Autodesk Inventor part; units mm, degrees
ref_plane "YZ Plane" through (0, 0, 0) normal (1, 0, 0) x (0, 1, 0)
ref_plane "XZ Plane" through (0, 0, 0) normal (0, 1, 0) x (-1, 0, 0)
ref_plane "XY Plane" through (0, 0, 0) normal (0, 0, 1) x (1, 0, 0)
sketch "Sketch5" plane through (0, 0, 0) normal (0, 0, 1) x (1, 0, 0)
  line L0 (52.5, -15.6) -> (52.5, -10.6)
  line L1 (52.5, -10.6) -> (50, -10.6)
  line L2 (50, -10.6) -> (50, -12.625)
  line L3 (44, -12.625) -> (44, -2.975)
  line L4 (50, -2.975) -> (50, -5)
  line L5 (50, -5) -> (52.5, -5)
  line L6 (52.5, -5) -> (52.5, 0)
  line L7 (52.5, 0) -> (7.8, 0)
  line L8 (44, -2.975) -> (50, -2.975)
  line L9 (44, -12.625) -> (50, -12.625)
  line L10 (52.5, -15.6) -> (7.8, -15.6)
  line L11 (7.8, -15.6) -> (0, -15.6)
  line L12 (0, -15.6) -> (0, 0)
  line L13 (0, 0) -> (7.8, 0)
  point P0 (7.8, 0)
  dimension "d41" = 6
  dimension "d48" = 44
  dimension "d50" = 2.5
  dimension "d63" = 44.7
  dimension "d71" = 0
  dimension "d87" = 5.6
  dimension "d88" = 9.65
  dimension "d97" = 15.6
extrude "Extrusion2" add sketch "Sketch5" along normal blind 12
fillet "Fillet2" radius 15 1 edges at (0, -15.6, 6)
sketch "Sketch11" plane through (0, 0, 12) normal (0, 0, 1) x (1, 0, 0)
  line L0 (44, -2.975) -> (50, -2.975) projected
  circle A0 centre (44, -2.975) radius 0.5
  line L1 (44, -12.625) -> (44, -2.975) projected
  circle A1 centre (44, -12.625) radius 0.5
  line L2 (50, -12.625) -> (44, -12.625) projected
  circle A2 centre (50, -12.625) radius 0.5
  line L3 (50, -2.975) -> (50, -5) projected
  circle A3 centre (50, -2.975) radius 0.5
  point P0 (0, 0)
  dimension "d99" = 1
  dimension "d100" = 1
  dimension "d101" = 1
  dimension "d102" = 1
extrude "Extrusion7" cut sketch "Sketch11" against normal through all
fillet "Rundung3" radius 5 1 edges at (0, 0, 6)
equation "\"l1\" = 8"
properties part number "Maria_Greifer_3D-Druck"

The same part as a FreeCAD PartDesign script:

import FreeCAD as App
import Part
import Sketcher


def edges_at(feature, points):
    """Names of the edges that pass closest to the given points."""
    edges = feature.Shape.Edges
    near = lambda p: min(range(len(edges)), key=lambda i: edges[i].distToShape(Part.Vertex(*p))[0])
    return sorted({f"Edge{near(p) + 1}" for p in points})

doc = App.newDocument("Part")
params = doc.addObject("Spreadsheet::Sheet", "Params")
for row, (alias, value) in enumerate([
    ("sketch1_width", "6 mm"),
    ("sketch1_width2", "2.5 mm"),
    ("sketch1_height", "15.6 mm"),
    ("sketch1_height2", "9.65 mm"),
    ("pad1_length", "12 mm"),
    ("fillet_radius", "15 mm"),
    ("sketch2_diameter", "1 mm"),
    ("fillet2_radius", "5 mm"),
], start=1):
    params.set(f"A{row}", alias)
    params.set(f"B{row}", "=" + value)
    params.setAlias(f"B{row}", alias)

body = doc.addObject("PartDesign::Body", "Body")

# Sketch on XY plane
sketch1 = body.newObject("Sketcher::SketchObject", "Sketch")
sketch1.AttachmentSupport = (doc.getObject("XY_Plane"), [""])
sketch1.MapMode = "FlatFace"
sketch1.addGeometry([
    Part.LineSegment(App.Vector(0, -15.6, 0), App.Vector(52.5, -15.6, 0)),  # 0
    Part.LineSegment(App.Vector(52.5, -15.6, 0), App.Vector(52.5, -10.6, 0)),  # 1
    Part.LineSegment(App.Vector(52.5, -10.6, 0), App.Vector(50, -10.6, 0)),  # 2
    Part.LineSegment(App.Vector(50, -10.6, 0), App.Vector(50, -12.6, 0)),  # 3
    Part.LineSegment(App.Vector(50, -12.6, 0), App.Vector(44, -12.6, 0)),  # 4
    Part.LineSegment(App.Vector(44, -12.6, 0), App.Vector(44, -3, 0)),  # 5
    Part.LineSegment(App.Vector(44, -3, 0), App.Vector(50, -3, 0)),  # 6
    Part.LineSegment(App.Vector(50, -3, 0), App.Vector(50, -5, 0)),  # 7
    Part.LineSegment(App.Vector(50, -5, 0), App.Vector(52.5, -5, 0)),  # 8
    Part.LineSegment(App.Vector(52.5, -5, 0), App.Vector(52.5, 0, 0)),  # 9
    Part.LineSegment(App.Vector(52.5, 0, 0), App.Vector(0, 0, 0)),  # 10
    Part.LineSegment(App.Vector(0, 0, 0), App.Vector(0, -15.6, 0)),  # 11
], False)
sketch1.addConstraint([
    Sketcher.Constraint("Coincident", 0, 2, 1, 1),
    Sketcher.Constraint("Coincident", 1, 2, 2, 1),
    Sketcher.Constraint("Coincident", 2, 2, 3, 1),
    Sketcher.Constraint("Coincident", 3, 2, 4, 1),
    Sketcher.Constraint("Coincident", 4, 2, 5, 1),
    Sketcher.Constraint("Coincident", 5, 2, 6, 1),
    Sketcher.Constraint("Coincident", 6, 2, 7, 1),
    Sketcher.Constraint("Coincident", 7, 2, 8, 1),
    Sketcher.Constraint("Coincident", 8, 2, 9, 1),
    Sketcher.Constraint("Coincident", 9, 2, 10, 1),
    Sketcher.Constraint("Coincident", 10, 2, 11, 1),
    Sketcher.Constraint("Coincident", 11, 2, 0, 1),
    Sketcher.Constraint("Horizontal", 0),
    Sketcher.Constraint("Vertical", 1),
    Sketcher.Constraint("Horizontal", 2),
    Sketcher.Constraint("Vertical", 3),
    Sketcher.Constraint("Horizontal", 4),
    Sketcher.Constraint("Vertical", 5),
    Sketcher.Constraint("Horizontal", 6),
    Sketcher.Constraint("Vertical", 7),
    Sketcher.Constraint("Horizontal", 8),
    Sketcher.Constraint("Vertical", 9),
    Sketcher.Constraint("Horizontal", 10),
    Sketcher.Constraint("Vertical", 11),
    Sketcher.Constraint("Coincident", 10, 2, -1, 1),
    Sketcher.Constraint("Vertical", 3, 2, 6, 2),
    Sketcher.Constraint("Vertical", 1, 2, 8, 2),
    Sketcher.Constraint("Equal", 3, 7),
    Sketcher.Constraint("Equal", 1, 9),
    Sketcher.Constraint("DistanceX", 4, 2, 4, 1, 6.0),
    Sketcher.Constraint("DistanceX", 2, 2, 2, 1, 2.5),
    Sketcher.Constraint("DistanceY", 11, 2, 11, 1, 15.6),
    Sketcher.Constraint("DistanceX", -1, 1, 4, 2, 44.0),
    Sketcher.Constraint("DistanceY", 5, 1, 5, 2, 9.65),
    Sketcher.Constraint("DistanceY", 2, 2, 7, 2, 5.6),
])
sketch1.setExpression("Constraints[29]", "Params.sketch1_width")
sketch1.setExpression("Constraints[30]", "Params.sketch1_width2")
sketch1.setExpression("Constraints[31]", "Params.sketch1_height")
sketch1.setExpression("Constraints[33]", "Params.sketch1_height2")
pad1 = body.newObject("PartDesign::Pad", "Pad")
pad1.Profile = sketch1
pad1.setExpression("Length", "Params.pad1_length")
doc.recompute()

fillet = body.newObject("PartDesign::Fillet", "Fillet")
fillet.Base = (pad1, edges_at(pad1, [(0, -15.6, 6)]))
fillet.setExpression("Radius", "Params.fillet_radius")

# Sketch on XY plane
sketch2 = body.newObject("Sketcher::SketchObject", "Sketch001")
sketch2.AttachmentSupport = (doc.getObject("XY_Plane"), [""])
sketch2.MapMode = "FlatFace"
sketch2.AttachmentOffset = App.Placement(App.Vector(0, 0, 12), App.Rotation())
sketch2.addGeometry([
    Part.Circle(App.Vector(44, -3, 0), App.Vector(0, 0, 1), 0.5),
    Part.Circle(App.Vector(50, -3, 0), App.Vector(0, 0, 1), 0.5),
    Part.Circle(App.Vector(50, -12.6, 0), App.Vector(0, 0, 1), 0.5),
    Part.Circle(App.Vector(44, -12.6, 0), App.Vector(0, 0, 1), 0.5),
], False)
sketch2.addConstraint([
    Sketcher.Constraint("Equal", 0, 1),
    Sketcher.Constraint("Equal", 1, 2),
    Sketcher.Constraint("Equal", 2, 3),
    Sketcher.Constraint("Horizontal", 0, 3, 1, 3),
    Sketcher.Constraint("Horizontal", 2, 3, 3, 3),
    Sketcher.Constraint("Vertical", 1, 3, 2, 3),
    Sketcher.Constraint("Vertical", 0, 3, 3, 3),
    Sketcher.Constraint("Diameter", 0, 1.0),
    Sketcher.Constraint("DistanceX", -1, 1, 0, 3, 44.0),
    Sketcher.Constraint("DistanceX", -1, 1, 1, 3, 50.0),
    Sketcher.Constraint("DistanceY", 2, 3, 1, 3, 9.65),
    Sketcher.Constraint("DistanceY", 0, 3, -1, 1, 2.975),
])
sketch2.setExpression("Constraints[7]", "Params.sketch2_diameter")
pocket1 = body.newObject("PartDesign::Pocket", "Pocket")
pocket1.Profile = sketch2
pocket1.Type = "ThroughAll"
doc.recompute()

fillet2 = body.newObject("PartDesign::Fillet", "Fillet001")
fillet2.Base = (pocket1, edges_at(pocket1, [(0, 0, 6)]))
fillet2.setExpression("Radius", "Params.fillet2_radius")

doc.recompute()
